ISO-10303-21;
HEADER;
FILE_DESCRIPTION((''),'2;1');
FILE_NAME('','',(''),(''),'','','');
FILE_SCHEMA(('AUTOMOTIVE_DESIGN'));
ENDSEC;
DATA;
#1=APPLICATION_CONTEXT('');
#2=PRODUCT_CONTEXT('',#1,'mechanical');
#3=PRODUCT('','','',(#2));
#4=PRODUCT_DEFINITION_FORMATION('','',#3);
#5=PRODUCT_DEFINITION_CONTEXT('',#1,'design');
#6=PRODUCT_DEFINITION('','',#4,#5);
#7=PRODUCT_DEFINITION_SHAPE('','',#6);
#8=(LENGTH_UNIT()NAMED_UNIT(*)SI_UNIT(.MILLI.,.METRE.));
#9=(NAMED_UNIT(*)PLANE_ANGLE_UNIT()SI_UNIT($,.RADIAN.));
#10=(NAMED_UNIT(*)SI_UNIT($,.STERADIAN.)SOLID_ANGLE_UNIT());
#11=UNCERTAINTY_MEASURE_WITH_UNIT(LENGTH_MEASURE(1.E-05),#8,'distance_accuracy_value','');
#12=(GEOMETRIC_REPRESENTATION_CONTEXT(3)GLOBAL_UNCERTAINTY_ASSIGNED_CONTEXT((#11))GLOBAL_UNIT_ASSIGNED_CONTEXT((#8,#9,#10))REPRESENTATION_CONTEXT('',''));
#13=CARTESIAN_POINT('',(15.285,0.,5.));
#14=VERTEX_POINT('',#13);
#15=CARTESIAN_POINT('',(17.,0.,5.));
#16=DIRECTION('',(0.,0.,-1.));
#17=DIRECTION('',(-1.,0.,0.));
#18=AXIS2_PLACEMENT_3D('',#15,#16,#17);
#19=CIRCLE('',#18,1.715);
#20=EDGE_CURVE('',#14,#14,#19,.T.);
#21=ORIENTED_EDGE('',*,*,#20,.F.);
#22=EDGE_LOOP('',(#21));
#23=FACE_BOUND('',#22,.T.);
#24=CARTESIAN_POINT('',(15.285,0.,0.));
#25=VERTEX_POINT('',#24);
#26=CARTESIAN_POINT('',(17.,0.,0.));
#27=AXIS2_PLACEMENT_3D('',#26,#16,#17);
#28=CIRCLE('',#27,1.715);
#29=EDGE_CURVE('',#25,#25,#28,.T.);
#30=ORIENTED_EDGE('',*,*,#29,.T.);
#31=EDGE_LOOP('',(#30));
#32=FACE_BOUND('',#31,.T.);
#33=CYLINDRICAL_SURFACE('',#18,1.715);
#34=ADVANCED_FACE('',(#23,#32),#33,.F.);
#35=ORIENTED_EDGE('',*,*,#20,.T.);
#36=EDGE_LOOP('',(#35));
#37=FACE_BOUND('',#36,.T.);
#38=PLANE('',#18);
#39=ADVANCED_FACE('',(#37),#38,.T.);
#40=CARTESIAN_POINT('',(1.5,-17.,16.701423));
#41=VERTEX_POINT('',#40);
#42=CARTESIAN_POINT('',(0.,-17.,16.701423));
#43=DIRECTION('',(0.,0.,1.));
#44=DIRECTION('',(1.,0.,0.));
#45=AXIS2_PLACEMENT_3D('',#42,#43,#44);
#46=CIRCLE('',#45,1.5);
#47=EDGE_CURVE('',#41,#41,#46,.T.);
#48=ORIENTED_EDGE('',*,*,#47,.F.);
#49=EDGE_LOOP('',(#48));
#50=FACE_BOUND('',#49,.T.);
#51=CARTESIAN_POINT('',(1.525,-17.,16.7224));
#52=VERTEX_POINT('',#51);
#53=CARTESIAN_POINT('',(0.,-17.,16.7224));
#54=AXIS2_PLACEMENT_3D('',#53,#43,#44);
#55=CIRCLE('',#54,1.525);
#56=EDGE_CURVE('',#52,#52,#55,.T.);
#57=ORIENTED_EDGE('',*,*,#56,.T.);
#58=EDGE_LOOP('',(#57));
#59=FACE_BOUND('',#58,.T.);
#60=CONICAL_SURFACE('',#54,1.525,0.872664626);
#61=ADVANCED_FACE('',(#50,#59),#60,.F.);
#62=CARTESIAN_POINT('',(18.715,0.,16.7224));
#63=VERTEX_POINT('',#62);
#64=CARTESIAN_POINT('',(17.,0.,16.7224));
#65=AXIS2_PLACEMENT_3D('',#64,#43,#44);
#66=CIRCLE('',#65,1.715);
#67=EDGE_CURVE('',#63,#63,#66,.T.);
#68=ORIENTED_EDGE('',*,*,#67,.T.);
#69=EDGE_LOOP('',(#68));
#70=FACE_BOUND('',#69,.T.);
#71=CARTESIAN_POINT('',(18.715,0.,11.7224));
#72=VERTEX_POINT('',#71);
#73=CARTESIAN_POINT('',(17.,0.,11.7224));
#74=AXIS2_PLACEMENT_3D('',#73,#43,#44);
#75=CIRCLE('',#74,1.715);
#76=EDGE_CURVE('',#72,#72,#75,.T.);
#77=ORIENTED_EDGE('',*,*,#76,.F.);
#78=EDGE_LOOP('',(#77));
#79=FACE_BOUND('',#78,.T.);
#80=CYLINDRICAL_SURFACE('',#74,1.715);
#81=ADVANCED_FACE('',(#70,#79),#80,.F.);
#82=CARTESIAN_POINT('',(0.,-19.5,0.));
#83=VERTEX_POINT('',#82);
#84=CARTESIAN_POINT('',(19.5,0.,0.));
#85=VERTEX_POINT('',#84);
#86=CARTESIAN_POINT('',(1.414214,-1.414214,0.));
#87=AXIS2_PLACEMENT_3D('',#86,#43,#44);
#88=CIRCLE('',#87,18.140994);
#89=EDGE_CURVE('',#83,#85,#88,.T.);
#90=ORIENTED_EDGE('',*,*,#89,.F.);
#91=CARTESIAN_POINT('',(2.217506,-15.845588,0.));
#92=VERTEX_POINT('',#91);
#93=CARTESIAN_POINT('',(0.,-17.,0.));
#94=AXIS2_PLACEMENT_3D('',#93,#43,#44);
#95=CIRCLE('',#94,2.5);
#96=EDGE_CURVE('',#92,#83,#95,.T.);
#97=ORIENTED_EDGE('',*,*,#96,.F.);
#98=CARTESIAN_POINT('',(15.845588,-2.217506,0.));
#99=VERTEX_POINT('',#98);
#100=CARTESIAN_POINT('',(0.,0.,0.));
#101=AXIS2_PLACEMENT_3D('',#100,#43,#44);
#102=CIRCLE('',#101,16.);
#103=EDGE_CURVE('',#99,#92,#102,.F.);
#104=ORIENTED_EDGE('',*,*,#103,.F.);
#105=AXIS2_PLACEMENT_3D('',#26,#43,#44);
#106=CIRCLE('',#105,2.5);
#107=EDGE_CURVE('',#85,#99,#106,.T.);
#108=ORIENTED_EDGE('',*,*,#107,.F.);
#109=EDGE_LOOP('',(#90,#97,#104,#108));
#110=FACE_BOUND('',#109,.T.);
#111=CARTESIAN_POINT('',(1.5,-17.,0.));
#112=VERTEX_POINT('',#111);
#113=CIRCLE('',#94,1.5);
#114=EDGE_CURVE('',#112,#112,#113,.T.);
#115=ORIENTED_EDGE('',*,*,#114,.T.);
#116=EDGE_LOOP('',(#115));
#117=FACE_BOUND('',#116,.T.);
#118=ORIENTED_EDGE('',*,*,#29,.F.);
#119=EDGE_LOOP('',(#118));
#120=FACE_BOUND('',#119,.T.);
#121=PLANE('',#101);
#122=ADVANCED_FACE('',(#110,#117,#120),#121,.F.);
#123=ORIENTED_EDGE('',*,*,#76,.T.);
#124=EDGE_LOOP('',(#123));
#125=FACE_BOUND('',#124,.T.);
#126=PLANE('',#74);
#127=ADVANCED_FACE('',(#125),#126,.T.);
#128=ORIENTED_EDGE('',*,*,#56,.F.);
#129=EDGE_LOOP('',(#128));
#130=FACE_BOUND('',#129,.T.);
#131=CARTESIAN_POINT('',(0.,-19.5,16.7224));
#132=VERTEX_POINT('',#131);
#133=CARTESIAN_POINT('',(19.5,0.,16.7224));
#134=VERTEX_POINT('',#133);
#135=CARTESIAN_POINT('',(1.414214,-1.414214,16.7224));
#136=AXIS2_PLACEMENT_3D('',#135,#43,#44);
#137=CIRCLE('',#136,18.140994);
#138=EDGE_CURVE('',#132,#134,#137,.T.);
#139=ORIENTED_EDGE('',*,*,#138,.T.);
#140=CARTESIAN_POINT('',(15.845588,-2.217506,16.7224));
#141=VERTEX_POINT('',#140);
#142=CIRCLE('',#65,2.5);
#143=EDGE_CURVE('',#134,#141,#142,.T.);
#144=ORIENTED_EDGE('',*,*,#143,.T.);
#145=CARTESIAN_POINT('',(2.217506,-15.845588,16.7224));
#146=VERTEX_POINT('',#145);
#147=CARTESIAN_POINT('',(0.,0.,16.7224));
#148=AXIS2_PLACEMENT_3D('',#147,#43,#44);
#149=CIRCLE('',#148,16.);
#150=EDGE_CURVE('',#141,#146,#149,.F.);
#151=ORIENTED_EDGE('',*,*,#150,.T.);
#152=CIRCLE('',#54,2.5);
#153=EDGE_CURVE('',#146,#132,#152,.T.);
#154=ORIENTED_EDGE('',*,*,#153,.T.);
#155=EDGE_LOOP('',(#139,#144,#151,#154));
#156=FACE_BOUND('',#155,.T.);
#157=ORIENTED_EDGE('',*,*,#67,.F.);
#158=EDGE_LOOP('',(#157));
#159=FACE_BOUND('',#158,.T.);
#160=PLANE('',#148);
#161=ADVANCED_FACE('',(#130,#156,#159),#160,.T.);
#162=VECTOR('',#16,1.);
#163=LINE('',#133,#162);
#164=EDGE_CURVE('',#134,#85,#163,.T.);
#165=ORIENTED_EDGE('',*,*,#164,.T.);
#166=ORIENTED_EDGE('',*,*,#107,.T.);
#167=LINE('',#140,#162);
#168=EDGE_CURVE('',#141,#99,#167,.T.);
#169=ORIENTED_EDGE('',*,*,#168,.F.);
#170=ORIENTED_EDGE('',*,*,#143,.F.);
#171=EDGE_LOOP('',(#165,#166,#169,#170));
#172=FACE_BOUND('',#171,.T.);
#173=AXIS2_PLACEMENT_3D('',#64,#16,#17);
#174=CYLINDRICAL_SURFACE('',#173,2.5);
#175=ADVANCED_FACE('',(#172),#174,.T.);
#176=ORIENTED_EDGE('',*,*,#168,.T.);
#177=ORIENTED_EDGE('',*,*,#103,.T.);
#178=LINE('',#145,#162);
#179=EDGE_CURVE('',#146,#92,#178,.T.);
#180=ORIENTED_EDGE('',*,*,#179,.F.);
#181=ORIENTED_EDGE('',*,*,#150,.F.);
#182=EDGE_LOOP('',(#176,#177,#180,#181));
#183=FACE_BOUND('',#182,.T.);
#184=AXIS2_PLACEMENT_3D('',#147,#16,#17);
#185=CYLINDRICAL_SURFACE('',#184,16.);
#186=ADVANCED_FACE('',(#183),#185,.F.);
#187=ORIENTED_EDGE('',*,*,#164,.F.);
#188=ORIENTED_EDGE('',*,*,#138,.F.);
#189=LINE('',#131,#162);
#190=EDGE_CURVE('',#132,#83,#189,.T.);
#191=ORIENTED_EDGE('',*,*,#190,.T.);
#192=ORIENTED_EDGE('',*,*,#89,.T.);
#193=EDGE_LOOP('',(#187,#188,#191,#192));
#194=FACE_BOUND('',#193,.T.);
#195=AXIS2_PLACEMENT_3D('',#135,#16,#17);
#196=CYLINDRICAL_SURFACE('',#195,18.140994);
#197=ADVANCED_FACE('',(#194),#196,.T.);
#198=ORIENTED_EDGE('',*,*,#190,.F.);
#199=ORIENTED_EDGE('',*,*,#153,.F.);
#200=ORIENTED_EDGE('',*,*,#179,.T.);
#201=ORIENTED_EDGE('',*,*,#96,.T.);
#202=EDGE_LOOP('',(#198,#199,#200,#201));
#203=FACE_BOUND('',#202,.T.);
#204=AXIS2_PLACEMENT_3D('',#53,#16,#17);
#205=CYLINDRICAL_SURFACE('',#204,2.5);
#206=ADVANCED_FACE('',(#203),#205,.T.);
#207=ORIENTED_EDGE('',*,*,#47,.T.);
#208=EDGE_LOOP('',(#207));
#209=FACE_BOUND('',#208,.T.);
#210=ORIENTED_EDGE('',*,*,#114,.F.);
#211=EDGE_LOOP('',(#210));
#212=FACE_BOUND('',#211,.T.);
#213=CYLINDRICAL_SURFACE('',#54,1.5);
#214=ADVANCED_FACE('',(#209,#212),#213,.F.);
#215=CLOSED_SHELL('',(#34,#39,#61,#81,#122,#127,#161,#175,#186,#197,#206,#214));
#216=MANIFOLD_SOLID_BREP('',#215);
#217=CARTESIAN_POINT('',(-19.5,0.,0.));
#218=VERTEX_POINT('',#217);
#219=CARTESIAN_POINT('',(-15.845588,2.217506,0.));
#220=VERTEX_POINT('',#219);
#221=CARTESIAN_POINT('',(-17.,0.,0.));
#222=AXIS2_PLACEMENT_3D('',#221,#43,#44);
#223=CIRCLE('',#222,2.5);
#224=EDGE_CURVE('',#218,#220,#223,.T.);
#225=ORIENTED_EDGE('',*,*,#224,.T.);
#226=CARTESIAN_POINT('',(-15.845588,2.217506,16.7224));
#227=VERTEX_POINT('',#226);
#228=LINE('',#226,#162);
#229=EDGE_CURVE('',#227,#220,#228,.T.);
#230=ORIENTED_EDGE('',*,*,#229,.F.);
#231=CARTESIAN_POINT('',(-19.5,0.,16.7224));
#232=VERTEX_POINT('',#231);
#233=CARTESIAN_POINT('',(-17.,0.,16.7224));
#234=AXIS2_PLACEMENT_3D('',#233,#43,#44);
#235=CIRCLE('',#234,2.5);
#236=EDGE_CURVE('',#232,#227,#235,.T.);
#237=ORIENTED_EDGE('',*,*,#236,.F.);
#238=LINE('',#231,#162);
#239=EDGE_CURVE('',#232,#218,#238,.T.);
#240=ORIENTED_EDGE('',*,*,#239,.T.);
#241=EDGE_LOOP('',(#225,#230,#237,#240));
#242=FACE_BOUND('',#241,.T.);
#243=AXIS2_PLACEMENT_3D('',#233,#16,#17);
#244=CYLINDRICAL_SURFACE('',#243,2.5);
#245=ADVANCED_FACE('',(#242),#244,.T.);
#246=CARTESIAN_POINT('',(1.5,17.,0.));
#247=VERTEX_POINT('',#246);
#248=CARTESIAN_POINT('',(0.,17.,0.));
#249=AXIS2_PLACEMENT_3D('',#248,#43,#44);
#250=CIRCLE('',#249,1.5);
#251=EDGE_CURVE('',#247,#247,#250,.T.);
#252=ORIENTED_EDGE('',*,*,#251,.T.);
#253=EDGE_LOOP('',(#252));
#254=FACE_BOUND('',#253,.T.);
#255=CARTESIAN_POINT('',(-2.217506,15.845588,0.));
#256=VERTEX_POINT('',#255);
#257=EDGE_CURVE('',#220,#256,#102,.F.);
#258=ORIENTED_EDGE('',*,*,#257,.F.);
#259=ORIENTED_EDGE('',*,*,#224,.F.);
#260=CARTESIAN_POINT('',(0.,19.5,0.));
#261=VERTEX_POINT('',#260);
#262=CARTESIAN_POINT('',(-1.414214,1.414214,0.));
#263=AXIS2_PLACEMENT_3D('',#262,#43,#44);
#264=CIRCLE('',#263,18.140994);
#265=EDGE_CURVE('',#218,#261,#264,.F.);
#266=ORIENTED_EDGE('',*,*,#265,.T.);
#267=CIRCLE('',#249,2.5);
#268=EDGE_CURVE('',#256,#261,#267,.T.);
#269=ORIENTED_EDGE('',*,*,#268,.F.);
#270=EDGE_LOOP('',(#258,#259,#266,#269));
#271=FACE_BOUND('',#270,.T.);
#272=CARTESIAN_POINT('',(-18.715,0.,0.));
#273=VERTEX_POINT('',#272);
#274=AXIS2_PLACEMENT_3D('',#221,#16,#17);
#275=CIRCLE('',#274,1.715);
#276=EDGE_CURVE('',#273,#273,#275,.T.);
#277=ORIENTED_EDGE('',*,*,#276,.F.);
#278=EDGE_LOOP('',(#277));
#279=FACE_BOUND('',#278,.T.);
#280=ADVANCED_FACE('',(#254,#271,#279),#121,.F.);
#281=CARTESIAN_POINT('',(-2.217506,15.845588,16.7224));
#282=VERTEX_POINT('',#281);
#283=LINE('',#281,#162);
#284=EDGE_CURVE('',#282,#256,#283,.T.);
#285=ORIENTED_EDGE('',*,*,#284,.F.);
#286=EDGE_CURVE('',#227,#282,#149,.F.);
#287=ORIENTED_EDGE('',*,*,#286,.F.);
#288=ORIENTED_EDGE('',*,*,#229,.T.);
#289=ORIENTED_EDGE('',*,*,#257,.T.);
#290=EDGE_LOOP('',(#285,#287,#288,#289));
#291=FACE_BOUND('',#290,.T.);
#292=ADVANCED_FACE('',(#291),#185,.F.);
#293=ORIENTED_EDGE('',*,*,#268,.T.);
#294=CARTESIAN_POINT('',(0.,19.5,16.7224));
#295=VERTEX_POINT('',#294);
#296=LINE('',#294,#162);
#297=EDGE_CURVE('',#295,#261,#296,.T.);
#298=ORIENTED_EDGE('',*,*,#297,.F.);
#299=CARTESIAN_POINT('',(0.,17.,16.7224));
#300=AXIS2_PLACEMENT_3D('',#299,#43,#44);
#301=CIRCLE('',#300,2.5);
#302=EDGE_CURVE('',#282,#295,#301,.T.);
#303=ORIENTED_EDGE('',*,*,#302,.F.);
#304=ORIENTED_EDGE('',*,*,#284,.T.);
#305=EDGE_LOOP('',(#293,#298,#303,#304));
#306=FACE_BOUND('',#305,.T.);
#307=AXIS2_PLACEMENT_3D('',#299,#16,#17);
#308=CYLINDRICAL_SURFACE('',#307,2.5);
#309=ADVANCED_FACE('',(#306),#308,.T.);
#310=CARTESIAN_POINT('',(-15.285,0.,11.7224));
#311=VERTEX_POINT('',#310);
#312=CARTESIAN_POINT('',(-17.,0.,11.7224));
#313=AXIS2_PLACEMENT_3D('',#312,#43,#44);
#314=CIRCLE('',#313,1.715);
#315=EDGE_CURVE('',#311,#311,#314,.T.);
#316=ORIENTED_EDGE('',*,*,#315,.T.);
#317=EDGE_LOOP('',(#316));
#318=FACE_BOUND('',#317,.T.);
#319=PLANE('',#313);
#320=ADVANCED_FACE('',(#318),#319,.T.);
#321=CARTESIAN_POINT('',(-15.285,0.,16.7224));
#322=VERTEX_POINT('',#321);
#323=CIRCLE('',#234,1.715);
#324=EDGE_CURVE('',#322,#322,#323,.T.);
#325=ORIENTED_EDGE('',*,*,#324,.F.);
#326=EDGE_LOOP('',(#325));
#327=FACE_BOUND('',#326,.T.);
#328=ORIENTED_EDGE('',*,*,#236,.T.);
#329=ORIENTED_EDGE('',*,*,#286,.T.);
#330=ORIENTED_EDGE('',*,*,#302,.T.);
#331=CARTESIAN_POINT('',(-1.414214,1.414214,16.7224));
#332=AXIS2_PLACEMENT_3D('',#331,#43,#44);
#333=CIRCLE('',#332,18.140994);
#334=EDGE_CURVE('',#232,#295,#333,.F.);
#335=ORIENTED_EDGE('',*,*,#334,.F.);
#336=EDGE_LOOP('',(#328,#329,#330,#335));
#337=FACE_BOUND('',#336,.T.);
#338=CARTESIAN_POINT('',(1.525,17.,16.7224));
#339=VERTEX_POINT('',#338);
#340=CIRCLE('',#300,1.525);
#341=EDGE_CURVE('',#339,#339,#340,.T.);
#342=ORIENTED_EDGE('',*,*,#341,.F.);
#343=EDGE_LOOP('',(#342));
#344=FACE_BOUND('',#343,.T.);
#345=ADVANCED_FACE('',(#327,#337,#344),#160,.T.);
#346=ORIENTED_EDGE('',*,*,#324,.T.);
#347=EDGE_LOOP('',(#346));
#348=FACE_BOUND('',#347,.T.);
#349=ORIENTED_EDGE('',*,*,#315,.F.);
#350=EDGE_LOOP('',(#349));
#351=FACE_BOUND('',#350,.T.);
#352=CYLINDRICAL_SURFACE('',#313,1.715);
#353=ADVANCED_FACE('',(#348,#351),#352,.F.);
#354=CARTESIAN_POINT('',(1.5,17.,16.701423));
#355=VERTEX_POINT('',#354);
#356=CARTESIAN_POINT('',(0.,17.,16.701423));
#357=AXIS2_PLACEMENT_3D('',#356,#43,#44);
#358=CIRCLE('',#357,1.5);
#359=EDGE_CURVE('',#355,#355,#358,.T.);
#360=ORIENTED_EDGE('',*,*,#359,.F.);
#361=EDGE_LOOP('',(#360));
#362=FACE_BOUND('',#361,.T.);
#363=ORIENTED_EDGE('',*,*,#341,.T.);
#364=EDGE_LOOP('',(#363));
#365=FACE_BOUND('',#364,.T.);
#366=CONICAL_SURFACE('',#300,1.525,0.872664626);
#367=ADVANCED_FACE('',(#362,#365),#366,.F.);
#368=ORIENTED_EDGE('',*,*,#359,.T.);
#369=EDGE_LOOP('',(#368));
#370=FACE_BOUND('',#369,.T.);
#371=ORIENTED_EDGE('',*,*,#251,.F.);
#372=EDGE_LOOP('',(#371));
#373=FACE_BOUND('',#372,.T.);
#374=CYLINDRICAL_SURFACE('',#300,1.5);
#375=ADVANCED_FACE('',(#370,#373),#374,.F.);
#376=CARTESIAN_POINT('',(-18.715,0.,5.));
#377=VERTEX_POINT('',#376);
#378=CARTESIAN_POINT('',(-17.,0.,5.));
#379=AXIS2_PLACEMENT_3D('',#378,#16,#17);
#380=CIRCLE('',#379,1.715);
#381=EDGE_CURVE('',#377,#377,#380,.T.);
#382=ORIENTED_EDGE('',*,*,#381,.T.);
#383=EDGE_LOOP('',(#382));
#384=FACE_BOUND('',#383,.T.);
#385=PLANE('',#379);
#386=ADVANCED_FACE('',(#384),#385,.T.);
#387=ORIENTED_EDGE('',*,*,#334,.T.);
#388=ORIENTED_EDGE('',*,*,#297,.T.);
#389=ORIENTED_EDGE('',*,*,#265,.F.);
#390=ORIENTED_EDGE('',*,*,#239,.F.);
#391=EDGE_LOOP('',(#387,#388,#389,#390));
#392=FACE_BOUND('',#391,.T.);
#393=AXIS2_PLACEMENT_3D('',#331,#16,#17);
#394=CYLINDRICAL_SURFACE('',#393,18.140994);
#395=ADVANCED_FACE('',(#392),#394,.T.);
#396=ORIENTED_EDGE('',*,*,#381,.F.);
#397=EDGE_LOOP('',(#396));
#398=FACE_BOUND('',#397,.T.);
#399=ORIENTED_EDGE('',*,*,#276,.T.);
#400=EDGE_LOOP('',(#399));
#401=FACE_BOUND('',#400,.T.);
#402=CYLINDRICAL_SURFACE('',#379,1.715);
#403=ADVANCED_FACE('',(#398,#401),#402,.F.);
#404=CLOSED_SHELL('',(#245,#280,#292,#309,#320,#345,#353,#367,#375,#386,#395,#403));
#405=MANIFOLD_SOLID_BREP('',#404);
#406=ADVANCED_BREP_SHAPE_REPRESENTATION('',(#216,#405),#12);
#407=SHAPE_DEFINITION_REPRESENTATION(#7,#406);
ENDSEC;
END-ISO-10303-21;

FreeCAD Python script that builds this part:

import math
import FreeCAD as App
import Part
import Sketcher
from FreeCAD import Vector

doc = App.newDocument("Part")
params = doc.addObject("Spreadsheet::Sheet", "Params")
for row, (alias, value) in enumerate([
    ("sketch1_radius", "16 mm"),
    ("sketch1_radius2", "2.5 mm"),
    ("pad1_length", "16.7224 mm"),
    ("sketch2_diameter", "3 mm"),
    ("hole_diameter", "3 mm"),
    ("hole_csink_diameter", "3.05 mm"),
    ("sketch3_diameter", "3.43 mm"),
    ("pocket1_length", "5 mm"),
    ("sketch4_diameter", "3.43 mm"),
    ("pocket2_length", "5 mm"),
], start=1):
    params.set(f"A{row}", alias)
    params.set(f"B{row}", "=" + value)
    params.setAlias(f"B{row}", alias)

body = doc.addObject("PartDesign::Body", "Body")
body.AllowCompound = True

sketch1 = doc.addObject("Sketcher::SketchObject", "Sketch")
body.addObject(sketch1)
sketch1.AttachmentSupport = (doc.XY_Plane, [""])
sketch1.MapMode = "FlatFace"
sketch1.addGeometry(Part.ArcOfCircle(Part.Circle(Vector(-17, 0, 0), Vector(0, 0, 1), 2.5), math.radians(180), math.radians(422.49896)), False)
sketch1.addGeometry(Part.ArcOfCircle(Part.Circle(Vector(0, 0, 0), Vector(0, 0, 1), 16), math.radians(97.966503), math.radians(172.033497)), False)
sketch1.addGeometry(Part.ArcOfCircle(Part.Circle(Vector(0, 17, 0), Vector(0, 0, 1), 2.5), math.radians(-152.49896), math.radians(90)), False)
sketch1.addGeometry(Part.ArcOfCircle(Part.Circle(Vector(-1.414214, 1.414214, 0), Vector(0, 0, 1), 18.140994), math.radians(85.528869), math.radians(184.471131)), False)
sketch1.addGeometry(Part.ArcOfCircle(Part.Circle(Vector(1.414214, -1.414214, 0), Vector(0, 0, 1), 18.140994), math.radians(-94.471131), math.radians(4.471131)), False)
sketch1.addGeometry(Part.ArcOfCircle(Part.Circle(Vector(17, 0, 0), Vector(0, 0, 1), 2.5), math.radians(0), math.radians(242.49896)), False)
sketch1.addGeometry(Part.ArcOfCircle(Part.Circle(Vector(0, 0, 0), Vector(0, 0, 1), 16), math.radians(-82.033497), math.radians(-7.966503)), False)
sketch1.addGeometry(Part.ArcOfCircle(Part.Circle(Vector(0, -17, 0), Vector(0, 0, 1), 2.5), math.radians(27.50104), math.radians(270)), False)
sketch1.addConstraint(Sketcher.Constraint("Coincident", 0, 2, 1, 2))
sketch1.addConstraint(Sketcher.Constraint("Coincident", 1, 1, 2, 1))
sketch1.addConstraint(Sketcher.Constraint("Coincident", 2, 2, 3, 1))
sketch1.addConstraint(Sketcher.Constraint("Coincident", 3, 2, 0, 1))
sketch1.addConstraint(Sketcher.Constraint("Coincident", 4, 2, 5, 1))
sketch1.addConstraint(Sketcher.Constraint("Coincident", 5, 2, 6, 2))
sketch1.addConstraint(Sketcher.Constraint("Coincident", 6, 1, 7, 1))
sketch1.addConstraint(Sketcher.Constraint("Coincident", 7, 2, 4, 1))
sketch1.addConstraint(Sketcher.Constraint("Coincident", 1, 3, -1, 1))
sketch1.addConstraint(Sketcher.Constraint("Coincident", 6, 3, -1, 1))
sketch1.addConstraint(Sketcher.Constraint("Equal", 0, 2))
sketch1.addConstraint(Sketcher.Constraint("Equal", 3, 4))
sketch1.addConstraint(Sketcher.Constraint("Equal", 2, 5))
sketch1.addConstraint(Sketcher.Constraint("Equal", 1, 6))
sketch1.addConstraint(Sketcher.Constraint("Equal", 5, 7))
sketch1.addConstraint(Sketcher.Constraint("Symmetric", 3, 3, 4, 3, -1, 1))
sketch1.addConstraint(Sketcher.Constraint("Symmetric", 0, 3, 5, 3, -1, 1))
sketch1.addConstraint(Sketcher.Constraint("Symmetric", 2, 3, 7, 3, -1, 1))
sketch1.addConstraint(Sketcher.Constraint("PointOnObject", 0, 3, -1))
sketch1.addConstraint(Sketcher.Constraint("PointOnObject", 2, 3, -2))
sketch1.addConstraint(Sketcher.Constraint("PointOnObject", 2, 2, -2))
sketch1.addConstraint(Sketcher.Constraint("PointOnObject", 3, 2, -1))
sketch1.addConstraint(Sketcher.Constraint("Radius", 1, 16.0))
sketch1.addConstraint(Sketcher.Constraint("Radius", 0, 2.5))
sketch1.addConstraint(Sketcher.Constraint("DistanceX", 0, 3, -1, 1, 17.0))
sketch1.addConstraint(Sketcher.Constraint("DistanceY", -1, 1, 2, 3, 17.0))
sketch1.addConstraint(Sketcher.Constraint("Radius", 3, 18.140994))
sketch1.setExpression("Constraints[22]", "Params.sketch1_radius")
sketch1.setExpression("Constraints[23]", "Params.sketch1_radius2")
pad1 = doc.addObject("PartDesign::Pad", "Pad")
body.addObject(pad1)
pad1.Profile = sketch1
pad1.setExpression("Length", "Params.pad1_length")

sketch2 = doc.addObject("Sketcher::SketchObject", "Sketch001")
body.addObject(sketch2)
sketch2.AttachmentSupport = (doc.XY_Plane, [""])
sketch2.MapMode = "FlatFace"
sketch2.AttachmentOffset = App.Placement(Vector(0, 0, 16.7224), App.Rotation())
sketch2.addGeometry(Part.Circle(Vector(0, 17, 0), Vector(0, 0, 1), 1.5), False)
sketch2.addGeometry(Part.Circle(Vector(0, -17, 0), Vector(0, 0, 1), 1.5), False)
sketch2.addConstraint(Sketcher.Constraint("Equal", 0, 1))
sketch2.addConstraint(Sketcher.Constraint("Symmetric", 0, 3, 1, 3, -1, 1))
sketch2.addConstraint(Sketcher.Constraint("PointOnObject", 0, 3, -2))
sketch2.addConstraint(Sketcher.Constraint("Diameter", 0, 3.0))
sketch2.addConstraint(Sketcher.Constraint("DistanceY", -1, 1, 0, 3, 17.0))
sketch2.setExpression("Constraints[3]", "Params.sketch2_diameter")
doc.recompute()
hole = doc.addObject("PartDesign::Hole", "Hole")
body.addObject(hole)
hole.Profile = sketch2
hole.ThreadType = "None"
hole.setExpression("Diameter", "Params.hole_diameter")
hole.DepthType = "ThroughAll"
hole.HoleCutType = "Countersink"
hole.setExpression("HoleCutDiameter", "Params.hole_csink_diameter")
hole.HoleCutCountersinkAngle = 100

sketch3 = doc.addObject("Sketcher::SketchObject", "Sketch002")
body.addObject(sketch3)
sketch3.AttachmentSupport = (doc.XY_Plane, [""])
sketch3.MapMode = "FlatFace"
sketch3.AttachmentOffset = App.Placement(Vector(0, 0, 16.7224), App.Rotation())
sketch3.addGeometry(Part.Circle(Vector(-17, 0, 0), Vector(0, 0, 1), 1.715), False)
sketch3.addGeometry(Part.Circle(Vector(17, 0, 0), Vector(0, 0, 1), 1.715), False)
sketch3.addConstraint(Sketcher.Constraint("Equal", 0, 1))
sketch3.addConstraint(Sketcher.Constraint("Symmetric", 0, 3, 1, 3, -1, 1))
sketch3.addConstraint(Sketcher.Constraint("PointOnObject", 0, 3, -1))
sketch3.addConstraint(Sketcher.Constraint("Diameter", 0, 3.43))
sketch3.addConstraint(Sketcher.Constraint("DistanceX", 0, 3, -1, 1, 17.0))
sketch3.setExpression("Constraints[3]", "Params.sketch3_diameter")
pocket1 = doc.addObject("PartDesign::Pocket", "Pocket")
body.addObject(pocket1)
pocket1.Profile = sketch3
pocket1.setExpression("Length", "Params.pocket1_length")

sketch4 = doc.addObject("Sketcher::SketchObject", "Sketch003")
body.addObject(sketch4)
sketch4.AttachmentSupport = (doc.XY_Plane, [""])
sketch4.MapMode = "FlatFace"
sketch4.AttachmentOffset = App.Placement(Vector(0, 0, 5), App.Rotation())
sketch4.addGeometry(Part.Circle(Vector(-17, 0, 0), Vector(0, 0, 1), 1.715), False)
sketch4.addGeometry(Part.Circle(Vector(17, 0, 0), Vector(0, 0, 1), 1.715), False)
sketch4.addConstraint(Sketcher.Constraint("Equal", 0, 1))
sketch4.addConstraint(Sketcher.Constraint("Symmetric", 0, 3, 1, 3, -1, 1))
sketch4.addConstraint(Sketcher.Constraint("PointOnObject", 0, 3, -1))
sketch4.addConstraint(Sketcher.Constraint("Diameter", 0, 3.43))
sketch4.addConstraint(Sketcher.Constraint("DistanceX", 0, 3, -1, 1, 17.0))
sketch4.setExpression("Constraints[3]", "Params.sketch4_diameter")
pocket2 = doc.addObject("PartDesign::Pocket", "Pocket001")
body.addObject(pocket2)
pocket2.Profile = sketch4
pocket2.setExpression("Length", "Params.pocket2_length")

doc.recompute()
